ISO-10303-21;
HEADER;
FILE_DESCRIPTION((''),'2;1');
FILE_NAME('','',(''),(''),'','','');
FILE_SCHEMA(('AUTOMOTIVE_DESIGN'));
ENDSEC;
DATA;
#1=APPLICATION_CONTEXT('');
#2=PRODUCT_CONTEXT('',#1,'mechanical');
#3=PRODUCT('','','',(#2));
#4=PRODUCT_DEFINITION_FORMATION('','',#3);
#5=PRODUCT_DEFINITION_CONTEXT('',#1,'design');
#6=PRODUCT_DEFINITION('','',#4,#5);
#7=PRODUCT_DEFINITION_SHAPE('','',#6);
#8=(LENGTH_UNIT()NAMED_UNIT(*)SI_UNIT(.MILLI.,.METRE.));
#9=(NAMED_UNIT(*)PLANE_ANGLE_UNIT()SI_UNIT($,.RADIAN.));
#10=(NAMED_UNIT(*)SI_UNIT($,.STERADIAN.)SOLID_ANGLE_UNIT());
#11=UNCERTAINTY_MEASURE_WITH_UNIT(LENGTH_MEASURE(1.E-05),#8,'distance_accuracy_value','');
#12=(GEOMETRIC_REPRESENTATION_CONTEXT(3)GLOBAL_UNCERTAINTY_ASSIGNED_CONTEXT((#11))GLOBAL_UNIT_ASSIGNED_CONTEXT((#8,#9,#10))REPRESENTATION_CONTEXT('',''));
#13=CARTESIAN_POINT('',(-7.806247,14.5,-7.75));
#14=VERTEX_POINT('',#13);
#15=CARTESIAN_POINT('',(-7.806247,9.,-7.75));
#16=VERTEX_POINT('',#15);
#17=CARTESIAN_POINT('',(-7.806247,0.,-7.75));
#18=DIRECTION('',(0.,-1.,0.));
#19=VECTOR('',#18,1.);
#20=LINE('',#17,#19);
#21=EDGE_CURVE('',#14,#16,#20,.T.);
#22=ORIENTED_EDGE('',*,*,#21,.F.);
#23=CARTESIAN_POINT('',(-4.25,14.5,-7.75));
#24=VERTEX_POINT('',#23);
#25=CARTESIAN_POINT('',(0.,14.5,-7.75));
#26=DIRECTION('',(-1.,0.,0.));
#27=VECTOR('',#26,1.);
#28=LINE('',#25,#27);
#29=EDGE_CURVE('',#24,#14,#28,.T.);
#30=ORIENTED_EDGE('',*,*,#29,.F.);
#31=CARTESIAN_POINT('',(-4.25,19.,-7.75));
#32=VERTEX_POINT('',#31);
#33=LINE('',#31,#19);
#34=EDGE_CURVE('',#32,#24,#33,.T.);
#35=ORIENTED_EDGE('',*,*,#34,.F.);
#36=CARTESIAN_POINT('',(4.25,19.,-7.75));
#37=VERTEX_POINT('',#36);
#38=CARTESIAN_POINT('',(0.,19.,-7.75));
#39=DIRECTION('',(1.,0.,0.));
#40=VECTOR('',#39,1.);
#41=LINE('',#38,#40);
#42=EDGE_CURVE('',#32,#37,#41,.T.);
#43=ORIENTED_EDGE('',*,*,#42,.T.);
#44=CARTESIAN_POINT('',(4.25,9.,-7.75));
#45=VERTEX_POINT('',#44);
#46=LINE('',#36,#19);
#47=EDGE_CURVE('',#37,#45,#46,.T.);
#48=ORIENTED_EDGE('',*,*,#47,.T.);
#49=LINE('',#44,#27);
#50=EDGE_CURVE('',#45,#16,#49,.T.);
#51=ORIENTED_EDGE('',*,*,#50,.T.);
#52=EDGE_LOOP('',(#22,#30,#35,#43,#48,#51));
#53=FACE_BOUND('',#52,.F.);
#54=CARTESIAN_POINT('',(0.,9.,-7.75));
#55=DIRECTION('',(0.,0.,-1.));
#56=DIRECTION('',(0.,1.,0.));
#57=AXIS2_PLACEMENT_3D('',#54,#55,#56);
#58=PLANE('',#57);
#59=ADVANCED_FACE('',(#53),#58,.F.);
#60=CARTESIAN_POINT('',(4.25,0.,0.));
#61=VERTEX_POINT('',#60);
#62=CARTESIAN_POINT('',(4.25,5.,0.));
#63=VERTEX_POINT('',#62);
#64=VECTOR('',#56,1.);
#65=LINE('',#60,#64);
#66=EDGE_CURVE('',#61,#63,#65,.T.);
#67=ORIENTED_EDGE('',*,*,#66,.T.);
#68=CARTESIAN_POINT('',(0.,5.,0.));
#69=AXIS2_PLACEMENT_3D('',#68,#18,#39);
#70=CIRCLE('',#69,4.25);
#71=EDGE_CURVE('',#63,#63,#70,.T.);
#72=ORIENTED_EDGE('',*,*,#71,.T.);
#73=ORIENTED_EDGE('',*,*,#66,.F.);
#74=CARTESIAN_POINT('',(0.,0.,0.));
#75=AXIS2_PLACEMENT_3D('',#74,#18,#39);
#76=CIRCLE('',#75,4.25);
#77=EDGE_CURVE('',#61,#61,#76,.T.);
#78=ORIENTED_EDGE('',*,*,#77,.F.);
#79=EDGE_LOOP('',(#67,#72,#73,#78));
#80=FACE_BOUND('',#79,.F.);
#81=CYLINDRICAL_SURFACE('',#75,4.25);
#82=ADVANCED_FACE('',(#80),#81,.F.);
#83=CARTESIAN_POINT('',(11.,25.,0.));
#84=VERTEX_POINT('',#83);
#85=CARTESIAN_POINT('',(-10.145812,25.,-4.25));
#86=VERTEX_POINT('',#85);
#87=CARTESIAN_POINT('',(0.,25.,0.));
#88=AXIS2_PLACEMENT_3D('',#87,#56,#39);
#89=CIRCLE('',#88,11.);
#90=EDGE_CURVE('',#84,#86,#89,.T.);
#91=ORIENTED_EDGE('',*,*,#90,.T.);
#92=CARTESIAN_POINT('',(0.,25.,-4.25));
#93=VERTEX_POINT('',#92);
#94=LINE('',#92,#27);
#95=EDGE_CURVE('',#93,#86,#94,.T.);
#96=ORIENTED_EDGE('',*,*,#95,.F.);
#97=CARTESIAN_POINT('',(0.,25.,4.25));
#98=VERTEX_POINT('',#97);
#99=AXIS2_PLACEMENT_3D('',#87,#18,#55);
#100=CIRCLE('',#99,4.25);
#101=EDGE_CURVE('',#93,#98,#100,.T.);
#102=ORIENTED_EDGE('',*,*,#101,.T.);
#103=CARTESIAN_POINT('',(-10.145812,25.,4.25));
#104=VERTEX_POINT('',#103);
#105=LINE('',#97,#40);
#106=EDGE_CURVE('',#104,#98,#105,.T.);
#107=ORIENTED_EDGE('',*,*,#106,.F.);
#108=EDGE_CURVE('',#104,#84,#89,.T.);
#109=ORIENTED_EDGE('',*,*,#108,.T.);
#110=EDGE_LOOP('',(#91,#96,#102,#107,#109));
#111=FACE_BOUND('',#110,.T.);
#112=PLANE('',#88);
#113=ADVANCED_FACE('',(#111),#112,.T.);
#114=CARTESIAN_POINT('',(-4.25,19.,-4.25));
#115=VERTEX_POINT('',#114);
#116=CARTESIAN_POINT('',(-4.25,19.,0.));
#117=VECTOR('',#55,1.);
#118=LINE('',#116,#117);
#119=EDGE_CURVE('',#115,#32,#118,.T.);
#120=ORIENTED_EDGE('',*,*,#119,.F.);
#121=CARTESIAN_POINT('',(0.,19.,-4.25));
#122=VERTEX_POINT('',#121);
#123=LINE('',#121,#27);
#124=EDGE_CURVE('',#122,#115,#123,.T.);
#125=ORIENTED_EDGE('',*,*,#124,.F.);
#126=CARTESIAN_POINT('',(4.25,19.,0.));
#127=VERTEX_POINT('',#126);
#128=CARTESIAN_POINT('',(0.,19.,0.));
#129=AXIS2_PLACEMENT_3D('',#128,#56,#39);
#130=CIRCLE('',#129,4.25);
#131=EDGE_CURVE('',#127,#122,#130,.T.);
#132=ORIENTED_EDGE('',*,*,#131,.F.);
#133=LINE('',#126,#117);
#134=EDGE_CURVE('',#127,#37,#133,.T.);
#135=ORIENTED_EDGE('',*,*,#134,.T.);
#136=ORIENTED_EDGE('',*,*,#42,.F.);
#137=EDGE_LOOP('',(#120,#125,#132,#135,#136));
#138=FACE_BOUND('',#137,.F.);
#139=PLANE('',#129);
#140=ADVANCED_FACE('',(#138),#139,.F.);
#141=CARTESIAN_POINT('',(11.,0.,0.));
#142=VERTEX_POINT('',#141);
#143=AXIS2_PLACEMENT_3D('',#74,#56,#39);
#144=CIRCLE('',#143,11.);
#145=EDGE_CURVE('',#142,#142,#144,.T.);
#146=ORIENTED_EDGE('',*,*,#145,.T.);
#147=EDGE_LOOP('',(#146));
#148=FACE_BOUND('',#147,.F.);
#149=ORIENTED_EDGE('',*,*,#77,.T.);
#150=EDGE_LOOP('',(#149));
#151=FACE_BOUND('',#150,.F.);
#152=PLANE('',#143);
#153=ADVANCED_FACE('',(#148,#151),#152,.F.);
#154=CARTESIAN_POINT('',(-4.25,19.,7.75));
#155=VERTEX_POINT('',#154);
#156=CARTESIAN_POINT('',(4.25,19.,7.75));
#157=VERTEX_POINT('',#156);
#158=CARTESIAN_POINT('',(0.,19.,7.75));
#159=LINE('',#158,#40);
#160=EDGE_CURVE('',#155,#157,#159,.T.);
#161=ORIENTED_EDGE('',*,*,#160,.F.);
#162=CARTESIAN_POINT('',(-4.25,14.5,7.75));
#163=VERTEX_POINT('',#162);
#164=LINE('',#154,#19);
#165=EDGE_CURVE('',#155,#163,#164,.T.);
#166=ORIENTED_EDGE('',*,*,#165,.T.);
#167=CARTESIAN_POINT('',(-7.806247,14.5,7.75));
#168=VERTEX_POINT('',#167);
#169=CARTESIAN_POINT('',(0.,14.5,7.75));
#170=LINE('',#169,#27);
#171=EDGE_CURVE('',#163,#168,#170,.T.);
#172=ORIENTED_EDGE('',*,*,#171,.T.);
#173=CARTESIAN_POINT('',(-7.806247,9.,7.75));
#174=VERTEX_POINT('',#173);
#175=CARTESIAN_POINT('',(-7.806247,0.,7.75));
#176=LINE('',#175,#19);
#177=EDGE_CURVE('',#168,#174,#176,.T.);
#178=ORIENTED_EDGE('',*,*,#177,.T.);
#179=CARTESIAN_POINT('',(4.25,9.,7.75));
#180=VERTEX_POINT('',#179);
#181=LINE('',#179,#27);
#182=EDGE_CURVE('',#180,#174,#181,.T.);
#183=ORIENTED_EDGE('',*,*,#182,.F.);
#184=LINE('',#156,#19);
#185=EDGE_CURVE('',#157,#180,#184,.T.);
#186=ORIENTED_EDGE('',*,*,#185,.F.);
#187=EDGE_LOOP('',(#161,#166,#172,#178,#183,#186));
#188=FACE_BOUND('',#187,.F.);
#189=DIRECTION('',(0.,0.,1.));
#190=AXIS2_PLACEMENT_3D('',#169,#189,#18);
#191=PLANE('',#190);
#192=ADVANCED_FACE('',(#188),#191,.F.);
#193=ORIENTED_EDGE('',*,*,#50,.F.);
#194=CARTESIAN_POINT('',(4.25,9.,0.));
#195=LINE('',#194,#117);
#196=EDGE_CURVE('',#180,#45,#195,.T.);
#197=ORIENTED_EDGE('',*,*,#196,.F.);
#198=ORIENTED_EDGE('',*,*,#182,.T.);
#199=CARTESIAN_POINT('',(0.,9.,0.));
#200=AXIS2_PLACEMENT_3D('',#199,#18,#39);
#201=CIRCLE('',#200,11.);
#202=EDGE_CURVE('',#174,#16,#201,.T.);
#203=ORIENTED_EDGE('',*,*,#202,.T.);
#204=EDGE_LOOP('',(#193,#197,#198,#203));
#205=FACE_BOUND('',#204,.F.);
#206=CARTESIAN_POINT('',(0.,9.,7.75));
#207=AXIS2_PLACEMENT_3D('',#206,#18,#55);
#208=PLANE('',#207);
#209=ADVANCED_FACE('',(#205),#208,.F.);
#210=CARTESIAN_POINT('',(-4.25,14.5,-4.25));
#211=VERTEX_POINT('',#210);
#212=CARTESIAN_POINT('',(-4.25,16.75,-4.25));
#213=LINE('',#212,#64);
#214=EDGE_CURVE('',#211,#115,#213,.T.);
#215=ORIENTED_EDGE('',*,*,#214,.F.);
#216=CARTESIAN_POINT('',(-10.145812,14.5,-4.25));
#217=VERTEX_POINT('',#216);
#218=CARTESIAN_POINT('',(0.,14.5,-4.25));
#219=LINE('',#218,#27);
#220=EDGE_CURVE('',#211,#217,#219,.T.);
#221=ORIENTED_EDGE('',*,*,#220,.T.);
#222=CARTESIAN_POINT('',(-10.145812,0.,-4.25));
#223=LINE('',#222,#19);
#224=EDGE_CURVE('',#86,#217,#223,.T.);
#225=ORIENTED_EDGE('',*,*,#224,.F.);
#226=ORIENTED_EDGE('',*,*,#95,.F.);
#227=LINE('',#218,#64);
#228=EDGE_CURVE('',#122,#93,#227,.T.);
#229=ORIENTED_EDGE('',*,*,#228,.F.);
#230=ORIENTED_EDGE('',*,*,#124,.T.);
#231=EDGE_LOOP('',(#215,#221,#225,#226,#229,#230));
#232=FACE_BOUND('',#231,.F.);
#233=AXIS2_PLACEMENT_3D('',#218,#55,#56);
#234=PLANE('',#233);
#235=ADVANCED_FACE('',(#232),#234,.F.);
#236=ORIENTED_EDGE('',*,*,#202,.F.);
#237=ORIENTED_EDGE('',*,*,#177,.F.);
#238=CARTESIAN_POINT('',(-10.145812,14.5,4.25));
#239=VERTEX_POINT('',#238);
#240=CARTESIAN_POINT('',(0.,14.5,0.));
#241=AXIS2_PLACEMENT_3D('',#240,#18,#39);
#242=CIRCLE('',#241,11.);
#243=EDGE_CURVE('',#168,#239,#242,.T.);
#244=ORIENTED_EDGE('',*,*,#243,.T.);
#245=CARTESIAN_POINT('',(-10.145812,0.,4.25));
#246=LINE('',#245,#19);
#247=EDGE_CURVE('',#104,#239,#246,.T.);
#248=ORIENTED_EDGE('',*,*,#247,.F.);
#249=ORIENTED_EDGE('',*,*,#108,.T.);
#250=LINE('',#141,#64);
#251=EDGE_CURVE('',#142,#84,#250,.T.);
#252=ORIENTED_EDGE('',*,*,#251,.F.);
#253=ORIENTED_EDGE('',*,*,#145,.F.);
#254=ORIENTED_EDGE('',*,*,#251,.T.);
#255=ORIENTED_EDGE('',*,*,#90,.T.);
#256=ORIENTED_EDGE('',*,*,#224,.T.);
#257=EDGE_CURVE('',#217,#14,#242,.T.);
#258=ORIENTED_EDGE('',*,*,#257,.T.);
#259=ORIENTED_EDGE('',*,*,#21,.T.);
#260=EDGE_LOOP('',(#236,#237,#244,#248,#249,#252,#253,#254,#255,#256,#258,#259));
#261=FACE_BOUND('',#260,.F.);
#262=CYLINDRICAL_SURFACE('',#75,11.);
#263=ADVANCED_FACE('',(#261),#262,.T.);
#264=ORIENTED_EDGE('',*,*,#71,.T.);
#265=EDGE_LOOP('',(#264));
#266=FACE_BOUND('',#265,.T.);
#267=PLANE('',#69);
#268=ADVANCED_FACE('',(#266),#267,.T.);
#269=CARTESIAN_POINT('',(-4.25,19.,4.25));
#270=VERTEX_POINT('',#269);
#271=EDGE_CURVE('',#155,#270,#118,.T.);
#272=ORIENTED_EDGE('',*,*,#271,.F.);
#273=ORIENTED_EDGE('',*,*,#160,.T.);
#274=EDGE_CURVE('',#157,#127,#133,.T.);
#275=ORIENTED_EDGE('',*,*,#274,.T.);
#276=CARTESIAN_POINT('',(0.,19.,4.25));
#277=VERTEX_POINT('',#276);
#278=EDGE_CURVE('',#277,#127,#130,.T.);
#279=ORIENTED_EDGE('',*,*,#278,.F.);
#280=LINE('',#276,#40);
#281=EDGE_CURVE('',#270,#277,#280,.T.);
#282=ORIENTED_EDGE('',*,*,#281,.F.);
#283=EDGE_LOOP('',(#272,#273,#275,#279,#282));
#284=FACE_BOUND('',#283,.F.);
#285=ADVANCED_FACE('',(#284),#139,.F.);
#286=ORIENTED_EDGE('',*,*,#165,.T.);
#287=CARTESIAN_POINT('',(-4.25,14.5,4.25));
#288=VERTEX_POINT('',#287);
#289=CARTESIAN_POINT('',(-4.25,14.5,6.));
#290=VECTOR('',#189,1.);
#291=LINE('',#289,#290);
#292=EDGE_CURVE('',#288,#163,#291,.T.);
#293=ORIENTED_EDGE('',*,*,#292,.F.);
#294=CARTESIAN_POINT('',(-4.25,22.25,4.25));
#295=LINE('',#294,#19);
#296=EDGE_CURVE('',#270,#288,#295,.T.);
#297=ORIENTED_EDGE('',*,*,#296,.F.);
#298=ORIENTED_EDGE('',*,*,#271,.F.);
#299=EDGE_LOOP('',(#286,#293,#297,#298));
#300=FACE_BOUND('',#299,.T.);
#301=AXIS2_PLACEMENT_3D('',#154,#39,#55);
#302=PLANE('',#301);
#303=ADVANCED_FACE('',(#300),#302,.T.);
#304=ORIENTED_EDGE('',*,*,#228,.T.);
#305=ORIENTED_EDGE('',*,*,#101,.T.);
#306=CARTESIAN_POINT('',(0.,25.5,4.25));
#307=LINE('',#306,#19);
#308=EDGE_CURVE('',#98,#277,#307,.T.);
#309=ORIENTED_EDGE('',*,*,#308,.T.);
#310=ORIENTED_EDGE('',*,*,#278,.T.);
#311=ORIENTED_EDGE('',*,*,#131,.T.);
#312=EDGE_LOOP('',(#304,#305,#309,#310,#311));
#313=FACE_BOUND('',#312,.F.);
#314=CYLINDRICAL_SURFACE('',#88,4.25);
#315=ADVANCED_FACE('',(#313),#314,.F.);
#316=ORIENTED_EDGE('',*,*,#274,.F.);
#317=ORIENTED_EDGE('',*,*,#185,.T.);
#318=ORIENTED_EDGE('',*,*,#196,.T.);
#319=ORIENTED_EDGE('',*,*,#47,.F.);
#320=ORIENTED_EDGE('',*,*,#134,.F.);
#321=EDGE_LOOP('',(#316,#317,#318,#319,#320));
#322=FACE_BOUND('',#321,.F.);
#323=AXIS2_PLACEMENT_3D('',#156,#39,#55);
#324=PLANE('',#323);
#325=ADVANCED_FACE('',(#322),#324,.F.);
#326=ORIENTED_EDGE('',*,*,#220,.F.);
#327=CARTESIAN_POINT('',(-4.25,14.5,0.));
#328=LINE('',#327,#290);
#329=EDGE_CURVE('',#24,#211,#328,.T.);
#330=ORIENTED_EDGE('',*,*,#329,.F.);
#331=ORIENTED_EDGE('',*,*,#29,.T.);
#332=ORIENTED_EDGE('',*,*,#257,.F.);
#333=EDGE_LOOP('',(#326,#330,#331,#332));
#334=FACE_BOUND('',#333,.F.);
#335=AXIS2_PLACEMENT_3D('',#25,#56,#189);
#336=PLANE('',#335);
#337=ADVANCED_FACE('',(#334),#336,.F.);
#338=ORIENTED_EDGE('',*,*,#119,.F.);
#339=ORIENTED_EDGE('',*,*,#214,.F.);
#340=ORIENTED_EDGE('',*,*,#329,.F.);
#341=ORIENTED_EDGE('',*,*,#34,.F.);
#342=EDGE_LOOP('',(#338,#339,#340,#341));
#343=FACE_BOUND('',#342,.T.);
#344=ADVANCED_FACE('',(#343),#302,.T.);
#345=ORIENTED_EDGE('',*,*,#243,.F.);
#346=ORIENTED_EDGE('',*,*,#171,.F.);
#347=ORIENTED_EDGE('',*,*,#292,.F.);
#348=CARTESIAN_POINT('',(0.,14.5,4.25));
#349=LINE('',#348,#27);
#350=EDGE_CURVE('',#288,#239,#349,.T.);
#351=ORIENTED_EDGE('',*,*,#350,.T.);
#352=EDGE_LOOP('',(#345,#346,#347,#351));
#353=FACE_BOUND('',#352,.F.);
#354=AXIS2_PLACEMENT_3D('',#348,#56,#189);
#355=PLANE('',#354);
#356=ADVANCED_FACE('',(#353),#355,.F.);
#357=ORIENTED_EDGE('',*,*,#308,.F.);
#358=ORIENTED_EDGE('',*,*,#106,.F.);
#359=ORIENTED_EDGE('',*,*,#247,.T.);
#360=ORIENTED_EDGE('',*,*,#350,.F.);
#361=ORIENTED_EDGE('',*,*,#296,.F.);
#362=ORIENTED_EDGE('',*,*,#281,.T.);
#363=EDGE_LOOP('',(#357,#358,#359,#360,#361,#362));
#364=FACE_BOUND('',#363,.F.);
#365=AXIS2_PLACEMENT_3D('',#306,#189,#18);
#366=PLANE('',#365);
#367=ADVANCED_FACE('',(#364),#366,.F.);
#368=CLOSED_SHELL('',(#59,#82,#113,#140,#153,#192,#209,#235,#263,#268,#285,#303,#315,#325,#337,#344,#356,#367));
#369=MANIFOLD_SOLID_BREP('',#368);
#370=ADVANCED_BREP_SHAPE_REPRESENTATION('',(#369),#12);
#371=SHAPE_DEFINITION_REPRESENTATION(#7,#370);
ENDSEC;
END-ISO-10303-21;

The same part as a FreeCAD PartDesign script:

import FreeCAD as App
import Part
import Sketcher

V = App.Vector
Q = App.Units.Quantity

doc = App.newDocument("Part")
body = doc.addObject("PartDesign::Body", "Body")

# Sketch on XZ plane
sketch1 = doc.addObject("Sketcher::SketchObject", "Sketch")
body.addObject(sketch1)
sketch1.AttachmentSupport = (doc.XZ_Plane, [""])
sketch1.MapMode = "FlatFace"
sketch1.addGeometry(Part.Circle(V(0, 0, 0), V(0, 0, 1), 11), False)
sketch1.addConstraint([
    Sketcher.Constraint("Coincident", 0, 3, -1, 1),
    Sketcher.Constraint("Diameter", 0, Q("22 mm")),
])
pad1 = doc.addObject("PartDesign::Pad", "Pad")
body.addObject(pad1)
pad1.Profile = sketch1
pad1.Length = 25
pad1.Reversed = True

# Sketch on XZ plane
sketch2 = doc.addObject("Sketcher::SketchObject", "Sketch001")
body.addObject(sketch2)
sketch2.AttachmentSupport = (doc.XZ_Plane, [""])
sketch2.MapMode = "FlatFace"
sketch2.addGeometry(Part.Circle(V(0, 0, 0), V(0, 0, 1), 4.2), False)
sketch2.addConstraint([
    Sketcher.Constraint("Coincident", 0, 3, -1, 1),
    Sketcher.Constraint("Diameter", 0, Q("8.5 mm")),
])
pocket1 = doc.addObject("PartDesign::Pocket", "Pocket")
body.addObject(pocket1)
pocket1.Profile = sketch2
pocket1.Length = 5

# Sketch on XZ plane
sketch3 = doc.addObject("Sketcher::SketchObject", "Sketch002")
body.addObject(sketch3)
sketch3.AttachmentSupport = (doc.XZ_Plane, [""])
sketch3.MapMode = "FlatFace"
sketch3.AttachmentOffset = App.Placement(V(0, 0, -25), App.Rotation())
sketch3.addGeometry(Part.Circle(V(0, 0, 0), V(0, 0, 1), 4.2), False)
sketch3.addConstraint([
    Sketcher.Constraint("Coincident", 0, 3, -1, 1),
    Sketcher.Constraint("Diameter", 0, Q("8.5 mm")),
])
pocket2 = doc.addObject("PartDesign::Pocket", "Pocket001")
body.addObject(pocket2)
pocket2.Profile = sketch3
pocket2.Length = 6
pocket2.Reversed = True

# Sketch on XZ plane
sketch4 = doc.addObject("Sketcher::SketchObject", "Sketch003")
body.addObject(sketch4)
sketch4.AttachmentSupport = (doc.XZ_Plane, [""])
sketch4.MapMode = "FlatFace"
sketch4.AttachmentOffset = App.Placement(V(0, 0, -19), App.Rotation())
sketch4.addGeometry([
    Part.LineSegment(V(-4, -8, 0), V(-4, 8, 0)),
    Part.LineSegment(V(-4, 8, 0), V(4, 8, 0)),
    Part.LineSegment(V(4, 8, 0), V(4, -8, 0)),
    Part.LineSegment(V(4, -8, 0), V(-4, -8, 0)),
], False)
sketch4.addConstraint([
    Sketcher.Constraint("Coincident", 0, 2, 1, 1),
    Sketcher.Constraint("Coincident", 1, 2, 2, 1),
    Sketcher.Constraint("Coincident", 2, 2, 3, 1),
    Sketcher.Constraint("Coincident", 3, 2, 0, 1),
    Sketcher.Constraint("Vertical", 0),
    Sketcher.Constraint("Horizontal", 1),
    Sketcher.Constraint("Vertical", 2),
    Sketcher.Constraint("Horizontal", 3),
    Sketcher.Constraint("Symmetric", 0, 2, 2, 2, -1, 1),
    Sketcher.Constraint("DistanceX", 1, 1, 1, 2, Q("8.5 mm")),
    Sketcher.Constraint("DistanceY", 0, 1, 0, 2, Q("15.5 mm")),
])
pocket3 = doc.addObject("PartDesign::Pocket", "Pocket002")
body.addObject(pocket3)
pocket3.Profile = sketch4
pocket3.Length = 10
pocket3.Reversed = True

# Sketch on YZ plane
sketch5 = doc.addObject("Sketcher::SketchObject", "Sketch004")
body.addObject(sketch5)
sketch5.AttachmentSupport = (doc.YZ_Plane, [""])
sketch5.MapMode = "FlatFace"
sketch5.addGeometry([
    Part.LineSegment(V(9, 7.8, 0), V(9, -7.8, 0)),  # 0
    Part.LineSegment(V(9, -7.8, 0), V(14.5, -7.8, 0)),  # 1
    Part.LineSegment(V(14.5, -7.8, 0), V(14.5, -4.2, 0)),  # 2
    Part.LineSegment(V(14.5, -4.2, 0), V(25.5, -4.2, 0)),  # 3
    Part.LineSegment(V(25.5, -4.2, 0), V(25.5, 4.2, 0)),  # 4
    Part.LineSegment(V(25.5, 4.2, 0), V(14.5, 4.2, 0)),  # 5
    Part.LineSegment(V(14.5, 4.2, 0), V(14.5, 7.8, 0)),  # 6
    Part.LineSegment(V(14.5, 7.8, 0), V(9, 7.8, 0)),  # 7
], False)
sketch5.addConstraint([
    Sketcher.Constraint("Coincident", 0, 2, 1, 1),
    Sketcher.Constraint("Coincident", 1, 2, 2, 1),
    Sketcher.Constraint("Coincident", 2, 2, 3, 1),
    Sketcher.Constraint("Coincident", 3, 2, 4, 1),
    Sketcher.Constraint("Coincident", 4, 2, 5, 1),
    Sketcher.Constraint("Coincident", 5, 2, 6, 1),
    Sketcher.Constraint("Coincident", 6, 2, 7, 1),
    Sketcher.Constraint("Coincident", 7, 2, 0, 1),
    Sketcher.Constraint("Vertical", 0),
    Sketcher.Constraint("Horizontal", 1),
    Sketcher.Constraint("Vertical", 2),
    Sketcher.Constraint("Horizontal", 3),
    Sketcher.Constraint("Vertical", 4),
    Sketcher.Constraint("Horizontal", 5),
    Sketcher.Constraint("Vertical", 6),
    Sketcher.Constraint("Horizontal", 7),
    Sketcher.Constraint("Symmetric", 2, 2, 5, 2, -1),
    Sketcher.Constraint("Equal", 2, 6),
    Sketcher.Constraint("DistanceX", 3, 1, 3, 2, Q("11 mm")),
    Sketcher.Constraint("DistanceX", 1, 1, 1, 2, Q("5.5 mm")),
    Sketcher.Constraint("DistanceY", 0, 2, 0, 1, Q("15.5 mm")),
    Sketcher.Constraint("DistanceY", 2, 1, 2, 2, Q("3.5 mm")),
    Sketcher.Constraint("DistanceX", -1, 1, 0, 2, Q("9 mm")),
])
pocket4 = doc.addObject("PartDesign::Pocket", "Pocket003")
body.addObject(pocket4)
pocket4.Profile = sketch5
pocket4.Type = "ThroughAll"

doc.recompute()
